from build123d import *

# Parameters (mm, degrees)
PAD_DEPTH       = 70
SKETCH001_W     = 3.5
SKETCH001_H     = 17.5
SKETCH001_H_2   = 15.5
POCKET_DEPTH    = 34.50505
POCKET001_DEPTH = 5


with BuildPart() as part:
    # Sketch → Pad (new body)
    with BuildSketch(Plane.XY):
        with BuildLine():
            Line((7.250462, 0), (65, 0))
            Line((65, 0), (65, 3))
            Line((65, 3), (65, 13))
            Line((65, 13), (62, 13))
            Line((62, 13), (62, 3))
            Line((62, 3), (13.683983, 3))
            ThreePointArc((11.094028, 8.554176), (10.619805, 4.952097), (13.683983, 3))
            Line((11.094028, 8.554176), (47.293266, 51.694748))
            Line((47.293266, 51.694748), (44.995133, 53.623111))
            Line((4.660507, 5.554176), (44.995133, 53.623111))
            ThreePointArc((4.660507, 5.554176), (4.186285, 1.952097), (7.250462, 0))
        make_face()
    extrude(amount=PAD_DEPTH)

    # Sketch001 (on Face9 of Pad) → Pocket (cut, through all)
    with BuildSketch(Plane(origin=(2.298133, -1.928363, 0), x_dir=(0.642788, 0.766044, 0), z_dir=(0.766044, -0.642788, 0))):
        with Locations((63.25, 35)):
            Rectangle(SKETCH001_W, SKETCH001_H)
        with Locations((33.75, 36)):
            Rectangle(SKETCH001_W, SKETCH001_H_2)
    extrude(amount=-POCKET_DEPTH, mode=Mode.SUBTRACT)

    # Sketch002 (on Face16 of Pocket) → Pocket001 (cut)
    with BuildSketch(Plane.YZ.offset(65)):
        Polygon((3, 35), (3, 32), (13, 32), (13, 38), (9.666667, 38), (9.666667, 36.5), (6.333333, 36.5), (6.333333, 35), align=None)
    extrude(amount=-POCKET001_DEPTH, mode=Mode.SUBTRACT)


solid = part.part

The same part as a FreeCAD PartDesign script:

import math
import FreeCAD as App
import Part
import Sketcher

V = App.Vector
Q = App.Units.Quantity


def add_polygon(sketch, points):
    """Adds a closed chain of lines whose ends are joined by coincident constraints."""
    first, n = sketch.GeometryCount, len(points)
    for a, b in zip(points, points[1:] + points[:1]):
        sketch.addGeometry(Part.LineSegment(App.Vector(*a, 0), App.Vector(*b, 0)), False)
    for i in range(n):
        sketch.addConstraint(Sketcher.Constraint("Coincident", first + i, 2, first + (i + 1) % n, 1))

doc = App.newDocument("Part")
params = doc.addObject("Spreadsheet::Sheet", "Params")
for row, (alias, value) in enumerate([
    ("sketch1_width", "3 mm"),
    ("sketch1_height", "13 mm"),
    ("sketch1_height2", "10 mm"),
    ("sketch1_length", "3 mm"),
    ("pad1_length", "70 mm"),
    ("sketch2_width", "3.5 mm"),
    ("sketch2_height", "17.5 mm"),
    ("sketch2_height2", "15.5 mm"),
    ("sketch3_width", "10 mm"),
    ("sketch3_height", "3 mm"),
    ("sketch3_height2", "6 mm"),
    ("pocket2_length", "5 mm"),
], start=1):
    params.set(f"A{row}", alias)
    params.set(f"B{row}", "=" + value)
    params.setAlias(f"B{row}", alias)

body = doc.addObject("PartDesign::Body", "Body")

# Sketch on XY plane
sketch1 = body.newObject("Sketcher::SketchObject", "Sketch")
sketch1.AttachmentSupport = (doc.getObject("XY_Plane"), [""])
sketch1.MapMode = "FlatFace"
sketch1.addGeometry([
    Part.LineSegment(V(7.3, 0, 0), V(65, 0, 0)),  # 0
    Part.LineSegment(V(65, 0, 0), V(65, 13, 0)),  # 1
    Part.LineSegment(V(65, 13, 0), V(62, 13, 0)),  # 2
    Part.LineSegment(V(62, 13, 0), V(62, 3, 0)),  # 3
    Part.LineSegment(V(62, 3, 0), V(13.7, 3, 0)),  # 4
    Part.ArcOfCircle(Part.Circle(V(13.7, 6.4, 0), V(0, 0, 1), 3.4), math.radians(140), math.radians(270)),  # 5
    Part.LineSegment(V(11.1, 8.6, 0), V(47.3, 51.7, 0)),  # 6
    Part.LineSegment(V(47.3, 51.7, 0), V(45, 53.6, 0)),  # 7
    Part.LineSegment(V(45, 53.6, 0), V(4.7, 5.6, 0)),  # 8
    Part.ArcOfCircle(Part.Circle(V(7.3, 3.4, 0), V(0, 0, 1), 3.4), math.radians(140), math.radians(270)),  # 9
], False)
sketch1.addConstraint([
    Sketcher.Constraint("Coincident", 0, 2, 1, 1),
    Sketcher.Constraint("Coincident", 1, 2, 2, 1),
    Sketcher.Constraint("Coincident", 2, 2, 3, 1),
    Sketcher.Constraint("Coincident", 3, 2, 4, 1),
    Sketcher.Constraint("Tangent", 4, 2, 5, 2),
    Sketcher.Constraint("Tangent", 5, 1, 6, 1),
    Sketcher.Constraint("Coincident", 6, 2, 7, 1),
    Sketcher.Constraint("Coincident", 7, 2, 8, 1),
    Sketcher.Constraint("Tangent", 8, 2, 9, 1),
    Sketcher.Constraint("Tangent", 9, 2, 0, 1),
    Sketcher.Constraint("Horizontal", 0),
    Sketcher.Constraint("Vertical", 1),
    Sketcher.Constraint("Horizontal", 2),
    Sketcher.Constraint("Vertical", 3),
    Sketcher.Constraint("Horizontal", 4),
    Sketcher.Constraint("Equal", 5, 9),
    Sketcher.Constraint("PointOnObject", 0, 2, -1),
    Sketcher.Constraint("Perpendicular", 6, 7),
    Sketcher.Constraint("Perpendicular", 7, 8),
    Sketcher.Constraint("DistanceX", 2, 2, 2, 1, Q("3 mm")),
    Sketcher.Constraint("DistanceY", 1, 1, 1, 2, Q("13 mm")),
    Sketcher.Constraint("DistanceY", 3, 2, 3, 1, Q("10 mm")),
    Sketcher.Constraint("Angle", 6, Q("50 deg")),
    Sketcher.Constraint("Distance", 7, Q("3 mm")),
    Sketcher.Constraint("DistanceX", -1, 1, 0, 2, Q("65 mm")),
    Sketcher.Constraint("Radius", 5, Q("3.380946 mm")),
    Sketcher.Constraint("Distance", 8, Q("62.749538 mm")),
    Sketcher.Constraint("DistanceX", 0, 1, 0, 2, Q("57.749538 mm")),
])
sketch1.setExpression("Constraints[19]", "Params.sketch1_width")
sketch1.setExpression("Constraints[20]", "Params.sketch1_height")
sketch1.setExpression("Constraints[21]", "Params.sketch1_height2")
sketch1.setExpression("Constraints[23]", "Params.sketch1_length")
pad1 = body.newObject("PartDesign::Pad", "Pad")
pad1.Profile = sketch1
pad1.setExpression("Length", "Params.pad1_length")

# Sketch on an angled plane
sketch2 = body.newObject("Sketcher::SketchObject", "Sketch001")
sketch2.Placement = App.Placement(V(2.298133, -1.928363, 0), App.Rotation(V(0.642788057, 0.766044068, 0), V(0, 0, 1), V(0.766044068, -0.642788057, 0), "ZXY"))
add_polygon(sketch2, [(61.5, 43.8), (61.5, 26.3), (65, 26.3), (65, 43.8)])  # lines 0-3
add_polygon(sketch2, [(32, 43.8), (32, 28.3), (35.5, 28.3), (35.5, 43.8)])  # lines 4-7
sketch2.addConstraint([
    Sketcher.Constraint("Vertical", 0),
    Sketcher.Constraint("Horizontal", 1),
    Sketcher.Constraint("Vertical", 2),
    Sketcher.Constraint("Horizontal", 3),
    Sketcher.Constraint("Vertical", 4),
    Sketcher.Constraint("Horizontal", 5),
    Sketcher.Constraint("Vertical", 6),
    Sketcher.Constraint("Horizontal", 7),
    Sketcher.Constraint("Horizontal", 3, 2, 6, 2),
    Sketcher.Constraint("Equal", 3, 5),
    Sketcher.Constraint("DistanceX", 1, 1, 1, 2, Q("3.5 mm")),
    Sketcher.Constraint("DistanceY", 0, 2, 0, 1, Q("17.5 mm")),
    Sketcher.Constraint("DistanceY", 4, 2, 4, 1, Q("15.5 mm")),
    Sketcher.Constraint("DistanceX", -1, 1, 1, 2, Q("65 mm")),
    Sketcher.Constraint("DistanceX", -1, 1, 4, 2, Q("32 mm")),
    Sketcher.Constraint("DistanceY", -1, 1, 0, 2, Q("26.25 mm")),
])
sketch2.setExpression("Constraints[18]", "Params.sketch2_width")
sketch2.setExpression("Constraints[19]", "Params.sketch2_height")
sketch2.setExpression("Constraints[20]", "Params.sketch2_height2")
pocket1 = body.newObject("PartDesign::Pocket", "Pocket")
pocket1.Profile = sketch2
pocket1.Type = "ThroughAll"

# Sketch on YZ plane
sketch3 = body.newObject("Sketcher::SketchObject", "Sketch002")
sketch3.AttachmentSupport = (doc.getObject("YZ_Plane"), [""])
sketch3.MapMode = "FlatFace"
sketch3.AttachmentOffset = App.Placement(V(0, 0, 65), App.Rotation())
add_polygon(sketch3, [(3, 35), (3, 32), (13, 32), (13, 38), (9.7, 38), (9.7, 36.5), (6.3, 36.5), (6.3, 35)])  # lines 0-7
sketch3.addConstraint([
    Sketcher.Constraint("Vertical", 0),
    Sketcher.Constraint("Horizontal", 1),
    Sketcher.Constraint("Vertical", 2),
    Sketcher.Constraint("Horizontal", 3),
    Sketcher.Constraint("Vertical", 4),
    Sketcher.Constraint("Horizontal", 5),
    Sketcher.Constraint("Vertical", 6),
    Sketcher.Constraint("Horizontal", 7),
    Sketcher.Constraint("Equal", 3, 5),
    Sketcher.Constraint("Equal", 5, 7),
    Sketcher.Constraint("Equal", 4, 6),
    Sketcher.Constraint("DistanceX", 1, 1, 1, 2, Q("10 mm")),
    Sketcher.Constraint("DistanceY", 0, 2, 0, 1, Q("3 mm")),
    Sketcher.Constraint("DistanceY", 2, 1, 2, 2, Q("6 mm")),
    Sketcher.Constraint("DistanceX", -1, 1, 0, 2, Q("3 mm")),
    Sketcher.Constraint("DistanceY", -1, 1, 0, 2, Q("32 mm")),
])
sketch3.setExpression("Constraints[19]", "Params.sketch3_width")
sketch3.setExpression("Constraints[20]", "Params.sketch3_height")
sketch3.setExpression("Constraints[21]", "Params.sketch3_height2")
pocket2 = body.newObject("PartDesign::Pocket", "Pocket001")
pocket2.Profile = sketch3
pocket2.setExpression("Length", "Params.pocket2_length")

doc.recompute()
